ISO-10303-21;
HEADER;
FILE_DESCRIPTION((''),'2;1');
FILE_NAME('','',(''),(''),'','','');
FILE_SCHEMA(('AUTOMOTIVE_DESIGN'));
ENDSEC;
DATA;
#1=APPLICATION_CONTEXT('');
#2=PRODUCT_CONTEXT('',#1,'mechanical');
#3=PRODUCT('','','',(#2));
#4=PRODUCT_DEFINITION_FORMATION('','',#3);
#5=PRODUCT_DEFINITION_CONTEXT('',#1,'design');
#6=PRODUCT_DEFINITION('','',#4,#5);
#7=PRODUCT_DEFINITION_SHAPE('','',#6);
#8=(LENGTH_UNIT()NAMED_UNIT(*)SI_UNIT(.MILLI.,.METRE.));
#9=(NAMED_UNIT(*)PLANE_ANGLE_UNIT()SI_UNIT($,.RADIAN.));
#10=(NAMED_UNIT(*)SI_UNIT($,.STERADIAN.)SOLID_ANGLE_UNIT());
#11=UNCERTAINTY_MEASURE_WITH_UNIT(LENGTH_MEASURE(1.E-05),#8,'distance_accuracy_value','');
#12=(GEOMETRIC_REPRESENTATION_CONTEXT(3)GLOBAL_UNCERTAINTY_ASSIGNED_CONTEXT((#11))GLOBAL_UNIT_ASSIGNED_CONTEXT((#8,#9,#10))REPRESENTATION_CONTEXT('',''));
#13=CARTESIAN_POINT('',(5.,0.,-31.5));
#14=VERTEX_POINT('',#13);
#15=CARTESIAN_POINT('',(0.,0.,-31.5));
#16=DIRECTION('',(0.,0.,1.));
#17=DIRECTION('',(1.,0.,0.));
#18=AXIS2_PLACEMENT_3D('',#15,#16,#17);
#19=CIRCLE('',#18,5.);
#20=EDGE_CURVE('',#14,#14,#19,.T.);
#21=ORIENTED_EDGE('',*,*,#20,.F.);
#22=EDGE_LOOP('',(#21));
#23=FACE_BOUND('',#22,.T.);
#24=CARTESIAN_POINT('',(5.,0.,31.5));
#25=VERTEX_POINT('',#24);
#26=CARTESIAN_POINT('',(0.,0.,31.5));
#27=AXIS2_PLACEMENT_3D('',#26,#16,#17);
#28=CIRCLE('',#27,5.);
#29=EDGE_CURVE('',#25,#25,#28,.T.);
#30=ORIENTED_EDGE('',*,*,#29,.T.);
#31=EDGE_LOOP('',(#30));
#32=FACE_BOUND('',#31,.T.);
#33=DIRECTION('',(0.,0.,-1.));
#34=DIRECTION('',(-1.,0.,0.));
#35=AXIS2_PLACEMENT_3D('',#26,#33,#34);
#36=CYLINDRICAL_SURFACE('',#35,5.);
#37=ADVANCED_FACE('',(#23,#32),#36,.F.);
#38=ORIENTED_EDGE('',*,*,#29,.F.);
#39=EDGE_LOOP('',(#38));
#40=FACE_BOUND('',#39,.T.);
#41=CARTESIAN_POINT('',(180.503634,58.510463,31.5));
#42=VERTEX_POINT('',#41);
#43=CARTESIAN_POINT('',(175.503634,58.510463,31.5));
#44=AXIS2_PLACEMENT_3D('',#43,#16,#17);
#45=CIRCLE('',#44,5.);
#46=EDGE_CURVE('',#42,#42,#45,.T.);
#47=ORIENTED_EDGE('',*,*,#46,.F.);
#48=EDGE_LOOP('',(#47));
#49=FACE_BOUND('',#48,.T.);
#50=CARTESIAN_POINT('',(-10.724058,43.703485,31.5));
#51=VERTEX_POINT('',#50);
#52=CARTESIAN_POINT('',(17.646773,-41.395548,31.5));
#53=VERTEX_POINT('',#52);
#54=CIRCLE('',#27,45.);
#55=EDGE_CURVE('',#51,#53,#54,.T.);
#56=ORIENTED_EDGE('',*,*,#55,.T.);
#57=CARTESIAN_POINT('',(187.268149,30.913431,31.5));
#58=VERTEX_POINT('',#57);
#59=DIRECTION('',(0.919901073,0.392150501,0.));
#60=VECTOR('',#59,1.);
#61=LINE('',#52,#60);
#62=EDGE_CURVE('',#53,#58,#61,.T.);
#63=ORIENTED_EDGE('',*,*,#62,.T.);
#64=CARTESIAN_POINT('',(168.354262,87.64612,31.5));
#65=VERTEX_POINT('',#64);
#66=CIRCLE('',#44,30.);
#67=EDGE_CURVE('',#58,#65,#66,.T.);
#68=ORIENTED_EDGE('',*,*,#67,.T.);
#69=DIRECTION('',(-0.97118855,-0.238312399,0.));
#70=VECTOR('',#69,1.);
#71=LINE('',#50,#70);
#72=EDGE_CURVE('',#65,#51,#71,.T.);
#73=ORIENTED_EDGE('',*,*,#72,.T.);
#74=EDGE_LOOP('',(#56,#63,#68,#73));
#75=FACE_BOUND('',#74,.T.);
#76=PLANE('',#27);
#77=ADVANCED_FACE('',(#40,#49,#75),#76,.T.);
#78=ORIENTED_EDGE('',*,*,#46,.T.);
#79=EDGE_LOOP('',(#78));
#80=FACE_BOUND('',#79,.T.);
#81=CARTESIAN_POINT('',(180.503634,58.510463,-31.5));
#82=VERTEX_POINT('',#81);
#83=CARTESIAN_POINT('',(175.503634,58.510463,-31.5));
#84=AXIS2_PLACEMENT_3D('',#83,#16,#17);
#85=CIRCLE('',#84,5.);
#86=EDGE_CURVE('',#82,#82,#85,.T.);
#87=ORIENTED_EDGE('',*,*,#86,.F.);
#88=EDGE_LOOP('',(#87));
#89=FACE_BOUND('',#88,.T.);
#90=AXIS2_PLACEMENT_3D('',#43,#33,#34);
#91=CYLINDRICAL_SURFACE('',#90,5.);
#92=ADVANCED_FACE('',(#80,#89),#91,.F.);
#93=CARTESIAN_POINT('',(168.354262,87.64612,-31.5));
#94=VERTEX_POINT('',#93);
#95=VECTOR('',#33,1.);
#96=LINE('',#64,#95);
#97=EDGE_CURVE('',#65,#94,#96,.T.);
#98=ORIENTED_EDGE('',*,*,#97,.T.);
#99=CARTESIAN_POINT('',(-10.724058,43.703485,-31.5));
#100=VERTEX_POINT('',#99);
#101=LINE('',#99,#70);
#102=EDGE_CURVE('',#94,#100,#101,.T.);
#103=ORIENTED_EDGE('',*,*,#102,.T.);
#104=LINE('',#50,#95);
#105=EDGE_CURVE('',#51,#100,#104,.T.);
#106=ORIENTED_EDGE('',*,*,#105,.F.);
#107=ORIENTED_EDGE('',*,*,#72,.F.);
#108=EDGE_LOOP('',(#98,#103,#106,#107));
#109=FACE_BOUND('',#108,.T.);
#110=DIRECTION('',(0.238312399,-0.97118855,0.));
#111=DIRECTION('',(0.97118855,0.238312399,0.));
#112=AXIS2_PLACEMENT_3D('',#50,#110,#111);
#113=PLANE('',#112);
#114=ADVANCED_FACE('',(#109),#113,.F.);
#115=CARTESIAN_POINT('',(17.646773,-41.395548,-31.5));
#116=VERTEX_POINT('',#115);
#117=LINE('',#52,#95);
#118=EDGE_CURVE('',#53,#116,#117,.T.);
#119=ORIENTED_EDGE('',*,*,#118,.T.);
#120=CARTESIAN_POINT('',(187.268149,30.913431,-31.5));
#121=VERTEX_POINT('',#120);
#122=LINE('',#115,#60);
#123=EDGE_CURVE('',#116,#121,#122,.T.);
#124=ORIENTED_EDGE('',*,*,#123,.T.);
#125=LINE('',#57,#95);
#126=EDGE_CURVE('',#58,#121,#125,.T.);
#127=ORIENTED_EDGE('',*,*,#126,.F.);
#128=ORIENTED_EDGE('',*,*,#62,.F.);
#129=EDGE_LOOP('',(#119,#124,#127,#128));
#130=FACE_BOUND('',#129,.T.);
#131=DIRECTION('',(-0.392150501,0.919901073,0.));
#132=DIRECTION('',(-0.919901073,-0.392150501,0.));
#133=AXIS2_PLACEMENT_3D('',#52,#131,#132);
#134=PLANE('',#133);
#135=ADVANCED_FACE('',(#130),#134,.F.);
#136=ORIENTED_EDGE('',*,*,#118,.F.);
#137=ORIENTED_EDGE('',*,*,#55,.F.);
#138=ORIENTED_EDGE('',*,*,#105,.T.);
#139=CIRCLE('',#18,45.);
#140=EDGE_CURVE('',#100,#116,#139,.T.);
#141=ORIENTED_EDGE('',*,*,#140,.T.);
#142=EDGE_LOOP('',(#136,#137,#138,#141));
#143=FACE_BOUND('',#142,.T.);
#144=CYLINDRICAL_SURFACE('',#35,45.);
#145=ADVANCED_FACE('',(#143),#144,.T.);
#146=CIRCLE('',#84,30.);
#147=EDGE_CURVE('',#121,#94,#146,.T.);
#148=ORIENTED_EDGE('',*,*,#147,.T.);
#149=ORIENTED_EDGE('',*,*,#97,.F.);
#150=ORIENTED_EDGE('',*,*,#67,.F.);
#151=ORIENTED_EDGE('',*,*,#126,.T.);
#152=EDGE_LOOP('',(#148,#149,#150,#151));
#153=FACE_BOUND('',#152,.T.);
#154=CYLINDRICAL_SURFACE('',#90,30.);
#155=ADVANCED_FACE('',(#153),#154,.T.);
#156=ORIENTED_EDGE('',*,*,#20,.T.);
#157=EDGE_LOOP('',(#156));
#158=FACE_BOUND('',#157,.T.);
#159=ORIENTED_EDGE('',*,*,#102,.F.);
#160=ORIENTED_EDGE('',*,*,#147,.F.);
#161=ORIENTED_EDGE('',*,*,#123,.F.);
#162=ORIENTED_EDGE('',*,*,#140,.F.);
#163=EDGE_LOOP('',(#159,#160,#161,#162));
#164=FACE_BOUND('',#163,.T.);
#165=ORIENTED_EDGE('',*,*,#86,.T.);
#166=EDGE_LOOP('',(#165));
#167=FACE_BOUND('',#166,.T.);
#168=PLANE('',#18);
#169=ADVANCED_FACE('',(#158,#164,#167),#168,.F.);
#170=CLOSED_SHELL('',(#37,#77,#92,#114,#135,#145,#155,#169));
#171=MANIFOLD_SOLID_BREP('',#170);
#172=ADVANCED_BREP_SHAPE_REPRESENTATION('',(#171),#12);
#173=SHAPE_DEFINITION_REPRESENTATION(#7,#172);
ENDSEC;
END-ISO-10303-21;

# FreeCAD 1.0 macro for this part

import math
import FreeCAD as App
import Part
import Sketcher
from FreeCAD import Vector

doc = App.newDocument("Part")
body = doc.addObject("PartDesign::Body", "Body")

sketch1 = body.newObject("Sketcher::SketchObject", "Sketch")
sketch1.AttachmentSupport = (doc.getObject("XY_Plane"), [""])
sketch1.MapMode = "FlatFace"
sketch1.addGeometry([
    Part.LineSegment(Vector(168.354262, 87.64612, 0), Vector(-10.724058, 43.703485, 0)),
    Part.ArcOfCircle(Part.Circle(Vector(0, 0, 0), Vector(0, 0, 1), 45), math.radians(103.786958), math.radians(293.088376)),
    Part.LineSegment(Vector(17.646773, -41.395548, 0), Vector(187.268149, 30.913431, 0)),
    Part.ArcOfCircle(Part.Circle(Vector(175.503634, 58.510463, 0), Vector(0, 0, 1), 30), math.radians(-66.911624), math.radians(103.786958)),
    Part.Circle(Vector(0, 0, 0), Vector(0, 0, 1), 5),
    Part.Circle(Vector(175.503634, 58.510463, 0), Vector(0, 0, 1), 5),
], False)
sketch1.addConstraint([
    Sketcher.Constraint("Tangent", 0, 2, 1, 1),
    Sketcher.Constraint("Tangent", 1, 2, 2, 1),
    Sketcher.Constraint("Tangent", 2, 2, 3, 1),
    Sketcher.Constraint("Tangent", 3, 2, 0, 1),
    Sketcher.Constraint("Coincident", 1, 3, -1, 1),
    Sketcher.Constraint("Coincident", 4, 3, -1, 1),
    Sketcher.Constraint("Coincident", 5, 3, 3, 3),
    Sketcher.Constraint("Equal", 4, 5),
    Sketcher.Constraint("Diameter", 4, 10.0),
    Sketcher.Constraint("Radius", 1, 45.0),
    Sketcher.Constraint("Radius", 3, 30.0),
    Sketcher.Constraint("Distance", 0, 184.390889),
    Sketcher.Constraint("DistanceY", 1, 2, -1, 1, 41.395548),
])
pad1 = body.newObject("PartDesign::Pad", "Pad")
pad1.Profile = sketch1
pad1.Length = 63
pad1.Midplane = True

doc.recompute()
